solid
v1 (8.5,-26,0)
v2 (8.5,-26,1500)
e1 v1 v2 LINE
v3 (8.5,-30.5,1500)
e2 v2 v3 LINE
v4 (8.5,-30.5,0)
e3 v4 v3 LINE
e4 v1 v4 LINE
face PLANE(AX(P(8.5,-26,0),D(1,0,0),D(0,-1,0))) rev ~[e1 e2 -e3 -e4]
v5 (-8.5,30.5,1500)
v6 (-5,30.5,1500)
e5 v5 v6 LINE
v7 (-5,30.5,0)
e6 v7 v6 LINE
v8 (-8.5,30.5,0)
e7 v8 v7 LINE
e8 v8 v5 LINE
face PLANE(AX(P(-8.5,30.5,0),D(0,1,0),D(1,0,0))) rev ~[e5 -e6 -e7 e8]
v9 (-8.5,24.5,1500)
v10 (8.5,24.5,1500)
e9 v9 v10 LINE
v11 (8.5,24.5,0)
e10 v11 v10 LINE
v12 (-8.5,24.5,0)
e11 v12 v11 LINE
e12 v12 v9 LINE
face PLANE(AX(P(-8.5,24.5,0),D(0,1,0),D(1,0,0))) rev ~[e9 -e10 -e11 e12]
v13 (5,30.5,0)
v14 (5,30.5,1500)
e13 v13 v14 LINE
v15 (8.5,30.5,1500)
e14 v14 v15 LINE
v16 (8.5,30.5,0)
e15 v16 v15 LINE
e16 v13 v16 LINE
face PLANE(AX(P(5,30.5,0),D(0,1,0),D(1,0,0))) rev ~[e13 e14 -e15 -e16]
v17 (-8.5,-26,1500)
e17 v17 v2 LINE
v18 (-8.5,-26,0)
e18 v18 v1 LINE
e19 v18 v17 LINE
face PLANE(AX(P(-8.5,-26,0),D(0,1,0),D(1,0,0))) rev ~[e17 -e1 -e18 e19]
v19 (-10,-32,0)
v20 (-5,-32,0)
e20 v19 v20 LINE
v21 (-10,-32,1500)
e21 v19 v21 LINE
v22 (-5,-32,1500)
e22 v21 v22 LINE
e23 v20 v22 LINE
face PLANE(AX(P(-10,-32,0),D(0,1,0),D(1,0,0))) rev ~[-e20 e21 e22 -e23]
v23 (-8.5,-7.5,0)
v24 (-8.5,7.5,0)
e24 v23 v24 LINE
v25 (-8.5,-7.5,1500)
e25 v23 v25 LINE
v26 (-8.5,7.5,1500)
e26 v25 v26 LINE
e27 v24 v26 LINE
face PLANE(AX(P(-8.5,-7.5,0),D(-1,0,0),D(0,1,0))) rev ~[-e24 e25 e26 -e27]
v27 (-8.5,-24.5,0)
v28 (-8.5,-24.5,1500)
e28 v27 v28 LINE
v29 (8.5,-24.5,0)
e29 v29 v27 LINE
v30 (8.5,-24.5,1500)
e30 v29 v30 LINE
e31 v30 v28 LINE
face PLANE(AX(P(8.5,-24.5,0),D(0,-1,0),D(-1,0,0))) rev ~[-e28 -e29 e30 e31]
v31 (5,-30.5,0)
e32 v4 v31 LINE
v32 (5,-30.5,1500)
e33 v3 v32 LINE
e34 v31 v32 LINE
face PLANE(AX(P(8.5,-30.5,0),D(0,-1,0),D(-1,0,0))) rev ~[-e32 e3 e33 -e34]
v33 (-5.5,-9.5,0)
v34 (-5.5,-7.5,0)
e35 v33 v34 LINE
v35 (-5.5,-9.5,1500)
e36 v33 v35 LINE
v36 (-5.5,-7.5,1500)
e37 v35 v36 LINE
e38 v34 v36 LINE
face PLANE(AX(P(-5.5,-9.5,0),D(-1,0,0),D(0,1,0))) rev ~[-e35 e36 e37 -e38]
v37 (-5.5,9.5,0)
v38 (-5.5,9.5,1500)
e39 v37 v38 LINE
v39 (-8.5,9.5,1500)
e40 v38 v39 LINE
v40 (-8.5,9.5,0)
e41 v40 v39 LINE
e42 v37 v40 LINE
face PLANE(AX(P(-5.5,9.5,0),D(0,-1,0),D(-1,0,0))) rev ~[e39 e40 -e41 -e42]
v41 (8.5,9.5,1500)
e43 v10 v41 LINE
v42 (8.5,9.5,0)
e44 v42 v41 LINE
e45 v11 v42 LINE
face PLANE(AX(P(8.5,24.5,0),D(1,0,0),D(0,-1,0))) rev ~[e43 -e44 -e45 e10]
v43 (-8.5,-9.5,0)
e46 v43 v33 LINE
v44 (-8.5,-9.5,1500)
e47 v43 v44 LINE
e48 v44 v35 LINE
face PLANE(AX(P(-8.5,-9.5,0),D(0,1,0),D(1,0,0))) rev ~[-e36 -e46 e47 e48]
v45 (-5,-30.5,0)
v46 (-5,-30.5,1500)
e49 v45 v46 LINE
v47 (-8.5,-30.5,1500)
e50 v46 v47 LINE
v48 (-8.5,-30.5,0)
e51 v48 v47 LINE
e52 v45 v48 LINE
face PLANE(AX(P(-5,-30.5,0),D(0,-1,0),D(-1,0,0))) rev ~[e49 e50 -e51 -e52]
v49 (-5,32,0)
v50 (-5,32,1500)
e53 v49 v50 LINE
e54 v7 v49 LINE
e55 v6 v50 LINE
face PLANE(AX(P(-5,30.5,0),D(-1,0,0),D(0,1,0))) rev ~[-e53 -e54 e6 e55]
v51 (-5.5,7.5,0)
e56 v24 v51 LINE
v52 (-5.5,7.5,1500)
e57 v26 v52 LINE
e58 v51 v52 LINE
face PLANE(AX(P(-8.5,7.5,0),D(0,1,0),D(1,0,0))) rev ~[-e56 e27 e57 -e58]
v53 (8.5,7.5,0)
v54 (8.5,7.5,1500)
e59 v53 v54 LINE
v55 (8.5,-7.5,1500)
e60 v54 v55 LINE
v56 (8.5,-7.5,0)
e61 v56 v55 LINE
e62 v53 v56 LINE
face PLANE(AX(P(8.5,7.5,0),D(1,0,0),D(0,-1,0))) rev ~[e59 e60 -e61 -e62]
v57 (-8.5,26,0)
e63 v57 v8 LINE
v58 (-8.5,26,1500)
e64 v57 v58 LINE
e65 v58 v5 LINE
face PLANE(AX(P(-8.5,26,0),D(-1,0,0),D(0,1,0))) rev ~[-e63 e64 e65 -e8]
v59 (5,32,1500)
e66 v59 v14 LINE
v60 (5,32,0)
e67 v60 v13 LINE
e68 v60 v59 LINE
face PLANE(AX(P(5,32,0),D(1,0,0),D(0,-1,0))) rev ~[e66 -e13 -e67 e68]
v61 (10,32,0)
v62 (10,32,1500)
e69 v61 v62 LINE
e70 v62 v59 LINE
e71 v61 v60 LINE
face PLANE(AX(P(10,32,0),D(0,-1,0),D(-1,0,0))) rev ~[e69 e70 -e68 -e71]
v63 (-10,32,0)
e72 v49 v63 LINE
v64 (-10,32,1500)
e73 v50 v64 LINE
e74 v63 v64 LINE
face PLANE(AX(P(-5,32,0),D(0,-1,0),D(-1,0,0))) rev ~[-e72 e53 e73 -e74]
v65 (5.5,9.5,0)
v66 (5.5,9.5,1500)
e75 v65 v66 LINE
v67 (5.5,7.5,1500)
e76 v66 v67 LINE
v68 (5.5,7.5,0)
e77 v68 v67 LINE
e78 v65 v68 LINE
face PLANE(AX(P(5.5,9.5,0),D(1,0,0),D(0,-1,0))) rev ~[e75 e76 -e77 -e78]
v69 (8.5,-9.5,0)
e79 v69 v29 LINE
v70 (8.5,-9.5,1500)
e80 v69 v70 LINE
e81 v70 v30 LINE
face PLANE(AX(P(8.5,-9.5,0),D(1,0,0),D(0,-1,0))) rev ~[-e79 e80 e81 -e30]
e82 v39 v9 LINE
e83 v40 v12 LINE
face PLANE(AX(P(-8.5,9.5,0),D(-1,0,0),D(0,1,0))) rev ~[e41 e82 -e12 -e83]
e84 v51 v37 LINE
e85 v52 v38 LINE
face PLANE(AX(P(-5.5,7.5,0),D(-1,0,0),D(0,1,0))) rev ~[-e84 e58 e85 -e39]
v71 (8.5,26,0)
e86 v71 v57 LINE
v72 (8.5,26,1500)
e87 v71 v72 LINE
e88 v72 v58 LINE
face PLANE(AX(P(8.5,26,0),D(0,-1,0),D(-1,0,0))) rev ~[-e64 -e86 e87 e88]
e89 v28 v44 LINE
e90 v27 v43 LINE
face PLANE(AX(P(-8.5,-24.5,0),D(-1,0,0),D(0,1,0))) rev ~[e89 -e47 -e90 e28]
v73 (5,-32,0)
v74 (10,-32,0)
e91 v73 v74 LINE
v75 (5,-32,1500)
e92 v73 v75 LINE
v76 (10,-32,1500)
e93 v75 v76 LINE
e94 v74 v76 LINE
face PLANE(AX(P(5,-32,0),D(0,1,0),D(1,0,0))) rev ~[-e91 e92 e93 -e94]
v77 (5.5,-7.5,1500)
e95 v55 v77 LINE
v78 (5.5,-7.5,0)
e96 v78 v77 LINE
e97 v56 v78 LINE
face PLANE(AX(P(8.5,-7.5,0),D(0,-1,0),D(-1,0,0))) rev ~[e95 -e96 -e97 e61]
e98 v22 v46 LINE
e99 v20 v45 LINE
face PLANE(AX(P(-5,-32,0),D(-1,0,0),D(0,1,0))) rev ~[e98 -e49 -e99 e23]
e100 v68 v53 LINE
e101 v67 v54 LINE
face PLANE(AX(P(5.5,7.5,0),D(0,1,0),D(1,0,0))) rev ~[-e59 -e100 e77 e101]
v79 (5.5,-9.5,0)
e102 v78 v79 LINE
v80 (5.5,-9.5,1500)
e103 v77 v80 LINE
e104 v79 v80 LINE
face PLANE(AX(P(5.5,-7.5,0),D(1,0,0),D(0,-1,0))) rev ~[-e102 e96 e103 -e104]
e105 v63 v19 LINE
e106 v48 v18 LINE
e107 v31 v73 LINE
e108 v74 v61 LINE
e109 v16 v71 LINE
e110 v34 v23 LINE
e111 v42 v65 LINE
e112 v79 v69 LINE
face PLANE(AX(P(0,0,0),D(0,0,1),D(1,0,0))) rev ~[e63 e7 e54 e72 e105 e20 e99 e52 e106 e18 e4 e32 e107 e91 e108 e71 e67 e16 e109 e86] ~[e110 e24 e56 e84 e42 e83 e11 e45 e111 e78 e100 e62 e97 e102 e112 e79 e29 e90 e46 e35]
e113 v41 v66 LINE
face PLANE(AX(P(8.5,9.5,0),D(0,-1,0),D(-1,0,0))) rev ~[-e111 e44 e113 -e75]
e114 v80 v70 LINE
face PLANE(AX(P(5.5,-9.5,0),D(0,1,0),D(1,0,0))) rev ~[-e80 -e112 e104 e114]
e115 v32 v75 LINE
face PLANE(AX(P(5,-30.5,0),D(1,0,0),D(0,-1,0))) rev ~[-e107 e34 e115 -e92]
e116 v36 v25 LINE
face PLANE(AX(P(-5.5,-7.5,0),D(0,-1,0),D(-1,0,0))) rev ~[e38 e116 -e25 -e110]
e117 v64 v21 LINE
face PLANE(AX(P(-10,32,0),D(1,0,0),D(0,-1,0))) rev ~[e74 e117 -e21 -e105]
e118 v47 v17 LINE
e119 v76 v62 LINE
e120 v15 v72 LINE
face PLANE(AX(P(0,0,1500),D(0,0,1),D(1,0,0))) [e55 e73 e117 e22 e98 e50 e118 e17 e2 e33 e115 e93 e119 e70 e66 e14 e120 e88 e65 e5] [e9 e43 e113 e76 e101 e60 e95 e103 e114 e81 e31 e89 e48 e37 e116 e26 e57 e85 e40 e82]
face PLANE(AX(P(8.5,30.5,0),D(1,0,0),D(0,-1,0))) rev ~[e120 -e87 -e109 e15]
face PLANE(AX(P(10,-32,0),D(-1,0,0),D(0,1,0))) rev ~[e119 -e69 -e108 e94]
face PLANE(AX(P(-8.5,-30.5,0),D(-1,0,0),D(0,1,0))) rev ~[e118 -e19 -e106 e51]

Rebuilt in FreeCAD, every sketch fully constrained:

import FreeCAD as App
import Part
import Sketcher

doc = App.newDocument("Part")
params = doc.addObject("Spreadsheet::Sheet", "Params")
for row, (alias, value) in enumerate([
    ("sketch1_width", "5 mm"),
    ("sketch1_width2", "17 mm"),
    ("sketch1_width3", "3 mm"),
    ("sketch1_height", "64 mm"),
    ("sketch1_height2", "15 mm"),
    ("pad1_length", "1500 mm"),
], start=1):
    params.set(f"A{row}", alias)
    params.set(f"B{row}", "=" + value)
    params.setAlias(f"B{row}", alias)

body = doc.addObject("PartDesign::Body", "Body")

# Sketch on XY plane
sketch1 = body.newObject("Sketcher::SketchObject", "Sketch")
sketch1.AttachmentSupport = (doc.getObject("XY_Plane"), [""])
sketch1.MapMode = "FlatFace"
sketch1.addGeometry([
    Part.LineSegment(App.Vector(-5, 30.5, 0), App.Vector(-5, 32, 0)),  # 0
    Part.LineSegment(App.Vector(-5, 32, 0), App.Vector(-10, 32, 0)),  # 1
    Part.LineSegment(App.Vector(-10, 32, 0), App.Vector(-10, -32, 0)),  # 2
    Part.LineSegment(App.Vector(-10, -32, 0), App.Vector(-5, -32, 0)),  # 3
    Part.LineSegment(App.Vector(-5, -32, 0), App.Vector(-5, -30.5, 0)),  # 4
    Part.LineSegment(App.Vector(-5, -30.5, 0), App.Vector(-8.5, -30.5, 0)),  # 5
    Part.LineSegment(App.Vector(-8.5, -30.5, 0), App.Vector(-8.5, -26, 0)),  # 6
    Part.LineSegment(App.Vector(-8.5, -26, 0), App.Vector(8.5, -26, 0)),  # 7
    Part.LineSegment(App.Vector(8.5, -26, 0), App.Vector(8.5, -30.5, 0)),  # 8
    Part.LineSegment(App.Vector(8.5, -30.5, 0), App.Vector(5, -30.5, 0)),  # 9
    Part.LineSegment(App.Vector(5, -30.5, 0), App.Vector(5, -32, 0)),  # 10
    Part.LineSegment(App.Vector(5, -32, 0), App.Vector(10, -32, 0)),  # 11
    Part.LineSegment(App.Vector(10, -32, 0), App.Vector(10, 32, 0)),  # 12
    Part.LineSegment(App.Vector(10, 32, 0), App.Vector(5, 32, 0)),  # 13
    Part.LineSegment(App.Vector(5, 32, 0), App.Vector(5, 30.5, 0)),  # 14
    Part.LineSegment(App.Vector(5, 30.5, 0), App.Vector(8.5, 30.5, 0)),  # 15
    Part.LineSegment(App.Vector(8.5, 30.5, 0), App.Vector(8.5, 26, 0)),  # 16
    Part.LineSegment(App.Vector(8.5, 26, 0), App.Vector(-8.5, 26, 0)),  # 17
    Part.LineSegment(App.Vector(-8.5, 26, 0), App.Vector(-8.5, 30.5, 0)),  # 18
    Part.LineSegment(App.Vector(-8.5, 30.5, 0), App.Vector(-5, 30.5, 0)),  # 19
    Part.LineSegment(App.Vector(-5.5, 9.5, 0), App.Vector(-8.5, 9.5, 0)),  # 20
    Part.LineSegment(App.Vector(-8.5, 9.5, 0), App.Vector(-8.5, 24.5, 0)),  # 21
    Part.LineSegment(App.Vector(-8.5, 24.5, 0), App.Vector(8.5, 24.5, 0)),  # 22
    Part.LineSegment(App.Vector(8.5, 24.5, 0), App.Vector(8.5, 9.5, 0)),  # 23
    Part.LineSegment(App.Vector(8.5, 9.5, 0), App.Vector(5.5, 9.5, 0)),  # 24
    Part.LineSegment(App.Vector(5.5, 9.5, 0), App.Vector(5.5, 7.5, 0)),  # 25
    Part.LineSegment(App.Vector(5.5, 7.5, 0), App.Vector(8.5, 7.5, 0)),  # 26
    Part.LineSegment(App.Vector(8.5, 7.5, 0), App.Vector(8.5, -7.5, 0)),  # 27
    Part.LineSegment(App.Vector(8.5, -7.5, 0), App.Vector(5.5, -7.5, 0)),  # 28
    Part.LineSegment(App.Vector(5.5, -7.5, 0), App.Vector(5.5, -9.5, 0)),  # 29
    Part.LineSegment(App.Vector(5.5, -9.5, 0), App.Vector(8.5, -9.5, 0)),  # 30
    Part.LineSegment(App.Vector(8.5, -9.5, 0), App.Vector(8.5, -24.5, 0)),  # 31
    Part.LineSegment(App.Vector(8.5, -24.5, 0), App.Vector(-8.5, -24.5, 0)),  # 32
    Part.LineSegment(App.Vector(-8.5, -24.5, 0), App.Vector(-8.5, -9.5, 0)),  # 33
    Part.LineSegment(App.Vector(-8.5, -9.5, 0), App.Vector(-5.5, -9.5, 0)),  # 34
    Part.LineSegment(App.Vector(-5.5, -9.5, 0), App.Vector(-5.5, -7.5, 0)),  # 35
    Part.LineSegment(App.Vector(-5.5, -7.5, 0), App.Vector(-8.5, -7.5, 0)),  # 36
    Part.LineSegment(App.Vector(-8.5, -7.5, 0), App.Vector(-8.5, 7.5, 0)),  # 37
    Part.LineSegment(App.Vector(-8.5, 7.5, 0), App.Vector(-5.5, 7.5, 0)),  # 38
    Part.LineSegment(App.Vector(-5.5, 7.5, 0), App.Vector(-5.5, 9.5, 0)),  # 39
], False)
sketch1.addConstraint([
    Sketcher.Constraint("Coincident", 0, 2, 1, 1),
    Sketcher.Constraint("Coincident", 1, 2, 2, 1),
    Sketcher.Constraint("Coincident", 2, 2, 3, 1),
    Sketcher.Constraint("Coincident", 3, 2, 4, 1),
    Sketcher.Constraint("Coincident", 4, 2, 5, 1),
    Sketcher.Constraint("Coincident", 5, 2, 6, 1),
    Sketcher.Constraint("Coincident", 6, 2, 7, 1),
    Sketcher.Constraint("Coincident", 7, 2, 8, 1),
    Sketcher.Constraint("Coincident", 8, 2, 9, 1),
    Sketcher.Constraint("Coincident", 9, 2, 10, 1),
    Sketcher.Constraint("Coincident", 10, 2, 11, 1),
    Sketcher.Constraint("Coincident", 11, 2, 12, 1),
    Sketcher.Constraint("Coincident", 12, 2, 13, 1),
    Sketcher.Constraint("Coincident", 13, 2, 14, 1),
    Sketcher.Constraint("Coincident", 14, 2, 15, 1),
    Sketcher.Constraint("Coincident", 15, 2, 16, 1),
    Sketcher.Constraint("Coincident", 16, 2, 17, 1),
    Sketcher.Constraint("Coincident", 17, 2, 18, 1),
    Sketcher.Constraint("Coincident", 18, 2, 19, 1),
    Sketcher.Constraint("Coincident", 19, 2, 0, 1),
    Sketcher.Constraint("Coincident", 20, 2, 21, 1),
    Sketcher.Constraint("Coincident", 21, 2, 22, 1),
    Sketcher.Constraint("Coincident", 22, 2, 23, 1),
    Sketcher.Constraint("Coincident", 23, 2, 24, 1),
    Sketcher.Constraint("Coincident", 24, 2, 25, 1),
    Sketcher.Constraint("Coincident", 25, 2, 26, 1),
    Sketcher.Constraint("Coincident", 26, 2, 27, 1),
    Sketcher.Constraint("Coincident", 27, 2, 28, 1),
    Sketcher.Constraint("Coincident", 28, 2, 29, 1),
    Sketcher.Constraint("Coincident", 29, 2, 30, 1),
    Sketcher.Constraint("Coincident", 30, 2, 31, 1),
    Sketcher.Constraint("Coincident", 31, 2, 32, 1),
    Sketcher.Constraint("Coincident", 32, 2, 33, 1),
    Sketcher.Constraint("Coincident", 33, 2, 34, 1),
    Sketcher.Constraint("Coincident", 34, 2, 35, 1),
    Sketcher.Constraint("Coincident", 35, 2, 36, 1),
    Sketcher.Constraint("Coincident", 36, 2, 37, 1),
    Sketcher.Constraint("Coincident", 37, 2, 38, 1),
    Sketcher.Constraint("Coincident", 38, 2, 39, 1),
    Sketcher.Constraint("Coincident", 39, 2, 20, 1),
    Sketcher.Constraint("Vertical", 0),
    Sketcher.Constraint("Horizontal", 1),
    Sketcher.Constraint("Vertical", 2),
    Sketcher.Constraint("Horizontal", 3),
    Sketcher.Constraint("Vertical", 4),
    Sketcher.Constraint("Horizontal", 5),
    Sketcher.Constraint("Vertical", 6),
    Sketcher.Constraint("Horizontal", 7),
    Sketcher.Constraint("Vertical", 8),
    Sketcher.Constraint("Horizontal", 9),
    Sketcher.Constraint("Vertical", 10),
    Sketcher.Constraint("Horizontal", 11),
    Sketcher.Constraint("Vertical", 12),
    Sketcher.Constraint("Horizontal", 13),
    Sketcher.Constraint("Vertical", 14),
    Sketcher.Constraint("Horizontal", 15),
    Sketcher.Constraint("Vertical", 16),
    Sketcher.Constraint("Horizontal", 17),
    Sketcher.Constraint("Vertical", 18),
    Sketcher.Constraint("Horizontal", 19),
    Sketcher.Constraint("Horizontal", 20),
    Sketcher.Constraint("Vertical", 21),
    Sketcher.Constraint("Horizontal", 22),
    Sketcher.Constraint("Vertical", 23),
    Sketcher.Constraint("Horizontal", 24),
    Sketcher.Constraint("Vertical", 25),
    Sketcher.Constraint("Horizontal", 26),
    Sketcher.Constraint("Vertical", 27),
    Sketcher.Constraint("Horizontal", 28),
    Sketcher.Constraint("Vertical", 29),
    Sketcher.Constraint("Horizontal", 30),
    Sketcher.Constraint("Vertical", 31),
    Sketcher.Constraint("Horizontal", 32),
    Sketcher.Constraint("Vertical", 33),
    Sketcher.Constraint("Horizontal", 34),
    Sketcher.Constraint("Vertical", 35),
    Sketcher.Constraint("Horizontal", 36),
    Sketcher.Constraint("Vertical", 37),
    Sketcher.Constraint("Horizontal", 38),
    Sketcher.Constraint("Vertical", 39),
    Sketcher.Constraint("Symmetric", 0, 2, 10, 2, -1, 1),
    Sketcher.Constraint("Symmetric", 2, 2, 12, 2, -1, 1),
    Sketcher.Constraint("Symmetric", 4, 2, 14, 2, -1, 1),
    Sketcher.Constraint("Symmetric", 6, 2, 16, 2, -1, 1),
    Sketcher.Constraint("Symmetric", 8, 2, 18, 2, -1, 1),
    Sketcher.Constraint("Symmetric", 20, 2, 30, 2, -1, 1),
    Sketcher.Constraint("Symmetric", 22, 2, 32, 2, -1, 1),
    Sketcher.Constraint("Symmetric", 24, 2, 34, 2, -1, 1),
    Sketcher.Constraint("Symmetric", 26, 2, 36, 2, -1, 1),
    Sketcher.Constraint("Symmetric", 28, 2, 38, 2, -1, 1),
    Sketcher.Constraint("Symmetric", 5, 2, 8, 2, -2),
    Sketcher.Constraint("Symmetric", 3, 2, 10, 2, -2),
    Sketcher.Constraint("Symmetric", 20, 2, 23, 2, -2),
    Sketcher.Constraint("Symmetric", 28, 2, 35, 2, -2),
    Sketcher.Constraint("Vertical", 18, 2, 20, 2),
    Sketcher.Constraint("Vertical", 23, 2, 26, 2),
    Sketcher.Constraint("Equal", 23, 27),
    Sketcher.Constraint("DistanceX", 1, 2, 1, 1, 5.0),
    Sketcher.Constraint("DistanceX", 7, 1, 7, 2, 17.0),
    Sketcher.Constraint("DistanceX", 20, 2, 20, 1, 3.0),
    Sketcher.Constraint("DistanceY", 2, 2, 2, 1, 64.0),
    Sketcher.Constraint("DistanceY", 21, 1, 21, 2, 15.0),
    Sketcher.Constraint("DistanceY", 25, 2, 25, 1, 2.0),
    Sketcher.Constraint("DistanceX", 5, 2, 5, 1, 3.5),
    Sketcher.Constraint("DistanceY", 0, 1, 0, 2, 1.5),
    Sketcher.Constraint("DistanceY", 6, 1, 6, 2, 4.5),
])
sketch1.setExpression("Constraints[97]", "Params.sketch1_width")
sketch1.setExpression("Constraints[98]", "Params.sketch1_width2")
sketch1.setExpression("Constraints[99]", "Params.sketch1_width3")
sketch1.setExpression("Constraints[100]", "Params.sketch1_height")
sketch1.setExpression("Constraints[101]", "Params.sketch1_height2")
pad1 = body.newObject("PartDesign::Pad", "Pad")
pad1.Profile = sketch1
pad1.setExpression("Length", "Params.pad1_length")

doc.recompute()
